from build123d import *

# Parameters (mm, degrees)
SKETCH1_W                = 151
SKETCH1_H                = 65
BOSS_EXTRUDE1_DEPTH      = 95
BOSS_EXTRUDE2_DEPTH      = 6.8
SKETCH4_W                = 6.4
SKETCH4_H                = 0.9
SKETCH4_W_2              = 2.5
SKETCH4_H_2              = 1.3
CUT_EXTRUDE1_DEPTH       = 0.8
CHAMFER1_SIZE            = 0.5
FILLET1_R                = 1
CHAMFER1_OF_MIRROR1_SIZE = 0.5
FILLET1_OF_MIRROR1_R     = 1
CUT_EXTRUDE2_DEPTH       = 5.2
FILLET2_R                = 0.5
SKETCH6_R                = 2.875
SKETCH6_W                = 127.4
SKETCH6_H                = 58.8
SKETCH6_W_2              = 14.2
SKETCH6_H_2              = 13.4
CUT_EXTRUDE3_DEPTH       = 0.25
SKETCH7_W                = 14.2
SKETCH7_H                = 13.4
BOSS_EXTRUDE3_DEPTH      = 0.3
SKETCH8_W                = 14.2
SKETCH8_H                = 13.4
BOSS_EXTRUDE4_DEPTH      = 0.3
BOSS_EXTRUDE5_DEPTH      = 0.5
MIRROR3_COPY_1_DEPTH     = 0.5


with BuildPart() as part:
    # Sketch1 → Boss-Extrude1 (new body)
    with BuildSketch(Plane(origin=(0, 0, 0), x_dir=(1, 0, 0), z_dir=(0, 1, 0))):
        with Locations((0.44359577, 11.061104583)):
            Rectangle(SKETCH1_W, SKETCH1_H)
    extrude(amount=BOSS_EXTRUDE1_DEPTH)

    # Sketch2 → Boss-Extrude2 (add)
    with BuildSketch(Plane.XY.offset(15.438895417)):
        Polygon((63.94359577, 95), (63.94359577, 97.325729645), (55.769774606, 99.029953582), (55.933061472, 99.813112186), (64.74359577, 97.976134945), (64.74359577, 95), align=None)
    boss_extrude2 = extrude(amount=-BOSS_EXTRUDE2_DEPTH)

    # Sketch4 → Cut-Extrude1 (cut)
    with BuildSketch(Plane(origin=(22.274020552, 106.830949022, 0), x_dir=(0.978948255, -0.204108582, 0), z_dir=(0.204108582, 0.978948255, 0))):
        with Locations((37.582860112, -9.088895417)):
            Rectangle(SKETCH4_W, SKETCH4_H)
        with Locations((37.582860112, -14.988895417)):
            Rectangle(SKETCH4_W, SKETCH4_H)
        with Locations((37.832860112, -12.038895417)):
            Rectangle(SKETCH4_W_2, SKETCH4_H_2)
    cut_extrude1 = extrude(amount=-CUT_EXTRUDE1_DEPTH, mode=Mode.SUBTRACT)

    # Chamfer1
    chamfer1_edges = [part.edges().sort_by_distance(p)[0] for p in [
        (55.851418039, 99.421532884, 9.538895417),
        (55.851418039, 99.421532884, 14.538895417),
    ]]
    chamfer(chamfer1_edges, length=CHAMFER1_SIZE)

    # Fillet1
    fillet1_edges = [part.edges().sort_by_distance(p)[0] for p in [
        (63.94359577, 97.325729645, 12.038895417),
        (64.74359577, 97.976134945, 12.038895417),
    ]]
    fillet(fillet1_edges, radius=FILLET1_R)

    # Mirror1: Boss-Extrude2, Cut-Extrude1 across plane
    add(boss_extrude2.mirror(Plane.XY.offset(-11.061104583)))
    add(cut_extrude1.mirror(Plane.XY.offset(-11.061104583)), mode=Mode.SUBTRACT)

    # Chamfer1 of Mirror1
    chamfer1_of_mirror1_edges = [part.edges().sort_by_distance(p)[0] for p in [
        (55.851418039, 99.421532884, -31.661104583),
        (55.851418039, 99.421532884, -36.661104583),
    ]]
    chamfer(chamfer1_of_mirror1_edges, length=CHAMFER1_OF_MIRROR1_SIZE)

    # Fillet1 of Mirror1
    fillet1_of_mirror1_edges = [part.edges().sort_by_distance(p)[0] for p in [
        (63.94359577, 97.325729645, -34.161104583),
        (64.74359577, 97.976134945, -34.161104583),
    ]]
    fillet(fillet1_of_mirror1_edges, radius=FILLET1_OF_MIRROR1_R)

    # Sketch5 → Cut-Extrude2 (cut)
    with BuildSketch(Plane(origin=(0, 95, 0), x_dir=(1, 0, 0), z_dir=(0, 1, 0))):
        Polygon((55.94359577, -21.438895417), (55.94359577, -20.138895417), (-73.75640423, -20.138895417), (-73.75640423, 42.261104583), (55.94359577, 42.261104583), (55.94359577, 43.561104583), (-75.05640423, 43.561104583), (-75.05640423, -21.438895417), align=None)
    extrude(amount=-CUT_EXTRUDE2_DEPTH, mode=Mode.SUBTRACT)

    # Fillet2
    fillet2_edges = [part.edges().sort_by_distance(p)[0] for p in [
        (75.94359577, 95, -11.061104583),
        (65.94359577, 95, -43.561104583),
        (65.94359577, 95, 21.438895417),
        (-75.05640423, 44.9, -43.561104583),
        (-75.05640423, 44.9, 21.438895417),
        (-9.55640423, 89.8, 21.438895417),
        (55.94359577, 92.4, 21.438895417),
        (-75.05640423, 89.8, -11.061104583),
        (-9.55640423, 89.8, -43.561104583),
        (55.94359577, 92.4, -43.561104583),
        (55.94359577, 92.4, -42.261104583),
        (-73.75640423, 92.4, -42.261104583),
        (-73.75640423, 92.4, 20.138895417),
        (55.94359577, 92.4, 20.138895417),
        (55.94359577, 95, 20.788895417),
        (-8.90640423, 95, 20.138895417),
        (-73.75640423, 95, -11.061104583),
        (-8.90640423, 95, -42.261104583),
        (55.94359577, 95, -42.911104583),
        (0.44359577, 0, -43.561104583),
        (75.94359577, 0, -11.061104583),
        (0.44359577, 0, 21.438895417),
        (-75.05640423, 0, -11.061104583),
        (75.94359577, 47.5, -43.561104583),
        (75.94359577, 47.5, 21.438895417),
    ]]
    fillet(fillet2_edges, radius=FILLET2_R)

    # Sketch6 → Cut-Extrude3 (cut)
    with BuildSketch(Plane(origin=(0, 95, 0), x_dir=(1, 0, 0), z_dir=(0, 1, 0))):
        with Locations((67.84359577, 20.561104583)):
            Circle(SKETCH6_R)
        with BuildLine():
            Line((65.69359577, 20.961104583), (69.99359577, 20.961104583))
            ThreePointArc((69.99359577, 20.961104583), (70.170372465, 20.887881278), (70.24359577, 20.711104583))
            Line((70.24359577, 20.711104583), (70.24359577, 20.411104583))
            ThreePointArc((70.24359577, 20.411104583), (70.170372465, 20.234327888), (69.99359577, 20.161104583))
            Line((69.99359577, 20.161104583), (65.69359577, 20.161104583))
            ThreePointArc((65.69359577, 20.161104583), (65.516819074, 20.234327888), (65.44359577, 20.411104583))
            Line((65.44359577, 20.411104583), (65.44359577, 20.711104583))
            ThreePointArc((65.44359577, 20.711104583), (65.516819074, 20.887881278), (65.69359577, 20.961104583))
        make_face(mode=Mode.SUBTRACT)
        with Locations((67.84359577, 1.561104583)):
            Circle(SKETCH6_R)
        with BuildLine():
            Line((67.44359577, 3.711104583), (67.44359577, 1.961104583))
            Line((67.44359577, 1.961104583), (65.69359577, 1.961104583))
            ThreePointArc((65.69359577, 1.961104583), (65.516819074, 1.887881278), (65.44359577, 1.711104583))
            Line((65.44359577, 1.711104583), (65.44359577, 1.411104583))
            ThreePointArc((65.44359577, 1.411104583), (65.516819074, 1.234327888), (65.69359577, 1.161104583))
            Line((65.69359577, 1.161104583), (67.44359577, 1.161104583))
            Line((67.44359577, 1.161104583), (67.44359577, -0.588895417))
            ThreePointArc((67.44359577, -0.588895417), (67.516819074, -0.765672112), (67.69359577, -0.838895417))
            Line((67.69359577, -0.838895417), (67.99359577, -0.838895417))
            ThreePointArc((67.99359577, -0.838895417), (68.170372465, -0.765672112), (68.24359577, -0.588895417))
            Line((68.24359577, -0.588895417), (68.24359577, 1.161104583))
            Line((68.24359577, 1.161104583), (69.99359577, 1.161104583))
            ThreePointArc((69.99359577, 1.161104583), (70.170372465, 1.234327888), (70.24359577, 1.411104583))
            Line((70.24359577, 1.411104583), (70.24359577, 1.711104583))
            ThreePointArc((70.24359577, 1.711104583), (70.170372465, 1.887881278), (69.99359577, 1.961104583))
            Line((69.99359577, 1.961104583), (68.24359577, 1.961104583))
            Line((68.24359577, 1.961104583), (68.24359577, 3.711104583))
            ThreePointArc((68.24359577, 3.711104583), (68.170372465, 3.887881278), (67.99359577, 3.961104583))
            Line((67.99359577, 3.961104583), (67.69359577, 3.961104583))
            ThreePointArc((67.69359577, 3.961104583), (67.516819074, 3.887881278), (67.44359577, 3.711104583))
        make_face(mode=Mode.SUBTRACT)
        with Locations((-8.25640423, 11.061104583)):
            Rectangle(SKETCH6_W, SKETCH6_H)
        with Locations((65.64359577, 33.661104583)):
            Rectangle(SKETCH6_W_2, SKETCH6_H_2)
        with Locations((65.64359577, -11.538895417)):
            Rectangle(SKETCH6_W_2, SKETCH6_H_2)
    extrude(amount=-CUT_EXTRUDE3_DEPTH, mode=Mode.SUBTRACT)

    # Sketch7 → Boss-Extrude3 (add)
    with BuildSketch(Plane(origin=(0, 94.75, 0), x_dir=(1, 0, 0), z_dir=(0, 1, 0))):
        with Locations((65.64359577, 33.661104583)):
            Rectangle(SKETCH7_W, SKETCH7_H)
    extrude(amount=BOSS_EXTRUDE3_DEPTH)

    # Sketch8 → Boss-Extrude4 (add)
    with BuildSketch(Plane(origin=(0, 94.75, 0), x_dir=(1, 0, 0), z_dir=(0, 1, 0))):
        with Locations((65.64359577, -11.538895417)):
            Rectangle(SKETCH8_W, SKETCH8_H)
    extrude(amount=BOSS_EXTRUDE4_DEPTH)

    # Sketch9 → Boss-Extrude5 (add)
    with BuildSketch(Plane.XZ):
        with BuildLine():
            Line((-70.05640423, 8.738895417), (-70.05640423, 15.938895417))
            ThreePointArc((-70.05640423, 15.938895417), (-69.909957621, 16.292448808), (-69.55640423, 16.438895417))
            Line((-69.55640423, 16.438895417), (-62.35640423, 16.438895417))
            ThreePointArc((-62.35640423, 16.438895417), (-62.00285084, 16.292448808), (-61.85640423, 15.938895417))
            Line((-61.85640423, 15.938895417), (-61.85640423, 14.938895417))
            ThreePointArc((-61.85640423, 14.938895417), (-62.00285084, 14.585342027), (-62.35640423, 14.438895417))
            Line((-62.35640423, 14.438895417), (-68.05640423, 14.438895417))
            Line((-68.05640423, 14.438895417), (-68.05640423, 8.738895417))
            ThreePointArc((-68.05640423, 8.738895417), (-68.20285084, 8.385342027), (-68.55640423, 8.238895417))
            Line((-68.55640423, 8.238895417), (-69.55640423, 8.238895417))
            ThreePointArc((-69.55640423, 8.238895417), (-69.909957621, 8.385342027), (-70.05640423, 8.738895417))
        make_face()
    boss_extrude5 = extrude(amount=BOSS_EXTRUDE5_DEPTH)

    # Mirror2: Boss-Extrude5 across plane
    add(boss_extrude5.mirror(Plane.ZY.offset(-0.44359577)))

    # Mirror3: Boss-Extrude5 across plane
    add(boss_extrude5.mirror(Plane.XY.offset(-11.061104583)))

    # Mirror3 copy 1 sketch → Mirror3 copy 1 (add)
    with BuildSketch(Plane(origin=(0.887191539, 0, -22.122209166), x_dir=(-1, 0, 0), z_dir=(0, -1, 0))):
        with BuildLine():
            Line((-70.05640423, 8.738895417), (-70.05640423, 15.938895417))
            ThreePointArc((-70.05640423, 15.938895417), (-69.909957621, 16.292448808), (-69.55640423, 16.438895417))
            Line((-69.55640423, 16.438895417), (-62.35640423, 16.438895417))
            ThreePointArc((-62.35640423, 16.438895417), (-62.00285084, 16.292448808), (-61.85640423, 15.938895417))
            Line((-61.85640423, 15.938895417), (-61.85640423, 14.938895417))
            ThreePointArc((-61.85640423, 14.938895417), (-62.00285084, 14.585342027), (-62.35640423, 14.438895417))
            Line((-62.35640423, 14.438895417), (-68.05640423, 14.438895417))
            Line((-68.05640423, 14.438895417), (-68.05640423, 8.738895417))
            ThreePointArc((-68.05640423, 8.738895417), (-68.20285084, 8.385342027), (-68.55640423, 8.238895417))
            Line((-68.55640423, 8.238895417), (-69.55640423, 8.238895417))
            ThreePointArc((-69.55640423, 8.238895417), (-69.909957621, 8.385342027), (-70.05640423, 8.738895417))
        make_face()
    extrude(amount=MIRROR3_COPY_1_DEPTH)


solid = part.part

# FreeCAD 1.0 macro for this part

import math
import FreeCAD as App
import Part
import Sketcher

V = App.Vector
Q = App.Units.Quantity


def edges_at(feature, points):
    """Names of the edges that pass closest to the given points."""
    edges = feature.Shape.Edges
    near = lambda p: min(range(len(edges)), key=lambda i: edges[i].distToShape(Part.Vertex(*p))[0])
    return sorted({f"Edge{near(p) + 1}" for p in points})


def add_polygon(sketch, points):
    """Adds a closed chain of lines whose ends are joined by coincident constraints."""
    first, n = sketch.GeometryCount, len(points)
    for a, b in zip(points, points[1:] + points[:1]):
        sketch.addGeometry(Part.LineSegment(App.Vector(*a, 0), App.Vector(*b, 0)), False)
    for i in range(n):
        sketch.addConstraint(Sketcher.Constraint("Coincident", first + i, 2, first + (i + 1) % n, 1))

doc = App.newDocument("Part")
body = doc.addObject("PartDesign::Body", "Body")
body.AllowCompound = True

# Sketch on XZ plane
sketch1 = doc.addObject("Sketcher::SketchObject", "Sketch")
body.addObject(sketch1)
sketch1.AttachmentSupport = (doc.XZ_Plane, [""])
sketch1.MapMode = "FlatFace"
add_polygon(sketch1, [(-75, -44), (-75, 21), (76, 21), (76, -44)])  # lines 0-3
sketch1.addConstraint([
    Sketcher.Constraint("Vertical", 0),
    Sketcher.Constraint("Horizontal", 1),
    Sketcher.Constraint("Vertical", 2),
    Sketcher.Constraint("Horizontal", 3),
    Sketcher.Constraint("DistanceX", 1, 1, 1, 2, Q("151 mm")),
    Sketcher.Constraint("DistanceY", 0, 1, 0, 2, Q("65 mm")),
    Sketcher.Constraint("DistanceX", 0, 2, -1, 1, Q("75.056404 mm")),
    Sketcher.Constraint("DistanceY", -1, 1, 0, 2, Q("21.438895 mm")),
])
pad1 = doc.addObject("PartDesign::Pad", "Pad")
body.addObject(pad1)
pad1.Profile = sketch1
pad1.Length = 95
pad1.Reversed = True

# Sketch on XY plane
sketch2 = doc.addObject("Sketcher::SketchObject", "Sketch001")
body.addObject(sketch2)
sketch2.AttachmentSupport = (doc.XY_Plane, [""])
sketch2.MapMode = "FlatFace"
sketch2.AttachmentOffset = App.Placement(V(0, 0, 15.438895), App.Rotation())
add_polygon(sketch2, [(63.9, 97.3), (63.9, 95), (64.7, 95), (64.7, 98), (55.9, 99.8), (55.8, 99)])  # lines 0-5
sketch2.addConstraint([
    Sketcher.Constraint("Vertical", 0),
    Sketcher.Constraint("Horizontal", 1),
    Sketcher.Constraint("Vertical", 2),
    Sketcher.Constraint("Perpendicular", 3, 4),
    Sketcher.Constraint("Perpendicular", 4, 5),
    Sketcher.Constraint("Distance", 3, Q("9 mm")),
    Sketcher.Constraint("DistanceX", 1, 1, 1, 2, Q("0.8 mm")),
    Sketcher.Constraint("DistanceY", -1, 1, 0, 2, Q("95 mm")),
    Sketcher.Constraint("Distance", 4, Q("0.8 mm")),
    Sketcher.Constraint("DistanceY", 0, 2, 0, 1, Q("2.32573 mm")),
    Sketcher.Constraint("DistanceY", 2, 1, 2, 2, Q("2.976135 mm")),
    Sketcher.Constraint("DistanceX", -1, 1, 3, 2, Q("55.933061 mm")),
])
pad2 = doc.addObject("PartDesign::Pad", "Pad001")
body.addObject(pad2)
pad2.Profile = sketch2
pad2.Length = 6.8
pad2.Reversed = True

# Sketch on an angled plane
sketch3 = doc.addObject("Sketcher::SketchObject", "Sketch002")
body.addObject(sketch3)
sketch3.Placement = App.Placement(V(22.274021, 106.830949, 0), App.Rotation(V(0.978948255, -0.204108582, 0), V(0, 0, -0.999999999), V(0.204108582, 0.978948255, 0), "ZXY"))
add_polygon(sketch3, [(34.4, -8.6), (34.4, -9.5), (40.8, -9.5), (40.8, -8.6)])  # lines 0-3
add_polygon(sketch3, [(34.4, -14.5), (34.4, -15.4), (40.8, -15.4), (40.8, -14.5)])  # lines 4-7
add_polygon(sketch3, [(36.6, -11.4), (36.6, -12.7), (39.1, -12.7), (39.1, -11.4)])  # lines 8-11
sketch3.addConstraint([
    Sketcher.Constraint("Vertical", 0),
    Sketcher.Constraint("Horizontal", 1),
    Sketcher.Constraint("Vertical", 2),
    Sketcher.Constraint("Horizontal", 3),
    Sketcher.Constraint("Vertical", 4),
    Sketcher.Constraint("Horizontal", 5),
    Sketcher.Constraint("Vertical", 6),
    Sketcher.Constraint("Horizontal", 7),
    Sketcher.Constraint("Vertical", 8),
    Sketcher.Constraint("Horizontal", 9),
    Sketcher.Constraint("Vertical", 10),
    Sketcher.Constraint("Horizontal", 11),
    Sketcher.Constraint("Vertical", 3, 2, 4, 2),
    Sketcher.Constraint("Vertical", 2, 2, 5, 2),
    Sketcher.Constraint("Equal", 2, 4),
    Sketcher.Constraint("DistanceX", 1, 1, 1, 2, Q("6.4 mm")),
    Sketcher.Constraint("DistanceX", 9, 1, 9, 2, Q("2.5 mm")),
    Sketcher.Constraint("DistanceY", 0, 2, 0, 1, Q("0.9 mm")),
    Sketcher.Constraint("DistanceY", 8, 2, 8, 1, Q("1.3 mm")),
    Sketcher.Constraint("DistanceY", 6, 2, 1, 2, Q("5 mm")),
    Sketcher.Constraint("DistanceX", 7, 2, 8, 2, Q("2.2 mm")),
    Sketcher.Constraint("DistanceY", 7, 2, 8, 2, Q("1.85 mm")),
    Sketcher.Constraint("DistanceX", -1, 1, 0, 2, Q("34.38286 mm")),
    Sketcher.Constraint("DistanceY", 0, 2, -1, 1, Q("9.538895 mm")),
])
pocket1 = doc.addObject("PartDesign::Pocket", "Pocket")
body.addObject(pocket1)
pocket1.Profile = sketch3
pocket1.Length = 0.8
doc.recompute()

chamfer = doc.addObject("PartDesign::Chamfer", "Chamfer")
body.addObject(chamfer)
chamfer.Base = (pocket1, edges_at(pocket1, [(55.851, 99.422, 9.539), (55.851, 99.422, 14.539)]))
chamfer.Size = 0.5
doc.recompute()

fillet = doc.addObject("PartDesign::Fillet", "Fillet")
body.addObject(fillet)
fillet.Base = (chamfer, edges_at(chamfer, [(63.944, 97.326, 12.039), (64.744, 97.976, 12.039)]))
fillet.Radius = 1
doc.recompute()

datumplane = doc.addObject("PartDesign::Plane", "DatumPlane")
body.addObject(datumplane)
datumplane.AttachmentSupport = (doc.XY_Plane, [""])
datumplane.MapMode = "FlatFace"
datumplane.AttachmentOffset = App.Placement(V(0, 0, -11.061105), App.Rotation())
mirrored = doc.addObject("PartDesign::Mirrored", "Mirrored")
body.addObject(mirrored)
mirrored.Originals = [pad2, pocket1]
mirrored.MirrorPlane = (datumplane, [""])
body.Tip = mirrored
doc.recompute()

chamfer2 = doc.addObject("PartDesign::Chamfer", "Chamfer001")
body.addObject(chamfer2)
chamfer2.Base = (mirrored, edges_at(mirrored, [(55.851, 99.422, -31.661), (55.851, 99.422, -36.661)]))
chamfer2.Size = 0.5
doc.recompute()

fillet2 = doc.addObject("PartDesign::Fillet", "Fillet001")
body.addObject(fillet2)
fillet2.Base = (chamfer2, edges_at(chamfer2, [(63.944, 97.326, -34.161), (64.744, 97.976, -34.161)]))
fillet2.Radius = 1

# Sketch on XZ plane
sketch4 = doc.addObject("Sketcher::SketchObject", "Sketch003")
body.addObject(sketch4)
sketch4.AttachmentSupport = (doc.XZ_Plane, [""])
sketch4.MapMode = "FlatFace"
sketch4.AttachmentOffset = App.Placement(V(0, 0, -95), App.Rotation())
add_polygon(sketch4, [(55.9, 21.4), (55.9, 20.1), (-73.8, 20.1), (-73.8, -42.3), (55.9, -42.3), (55.9, -43.6), (-75.1, -43.6), (-75.1, 21.4)])  # lines 0-7
sketch4.addConstraint([
    Sketcher.Constraint("Vertical", 0),
    Sketcher.Constraint("Horizontal", 1),
    Sketcher.Constraint("Vertical", 2),
    Sketcher.Constraint("Horizontal", 3),
    Sketcher.Constraint("Vertical", 4),
    Sketcher.Constraint("Horizontal", 5),
    Sketcher.Constraint("Vertical", 6),
    Sketcher.Constraint("Horizontal", 7),
    Sketcher.Constraint("Vertical", 0, 2, 3, 2),
    Sketcher.Constraint("Equal", 0, 4),
    Sketcher.Constraint("DistanceX", 5, 2, 5, 1, Q("131 mm")),
    Sketcher.Constraint("DistanceY", 6, 1, 6, 2, Q("65 mm")),
    Sketcher.Constraint("DistanceX", 1, 2, 1, 1, Q("129.7 mm")),
    Sketcher.Constraint("DistanceY", 0, 2, 0, 1, Q("1.3 mm")),
    Sketcher.Constraint("DistanceX", -1, 1, 0, 2, Q("55.943596 mm")),
    Sketcher.Constraint("DistanceY", -1, 1, 0, 2, Q("20.138895 mm")),
])
pocket2 = doc.addObject("PartDesign::Pocket", "Pocket001")
body.addObject(pocket2)
pocket2.Profile = sketch4
pocket2.Length = 5.2
pocket2.Reversed = True
doc.recompute()

fillet3 = doc.addObject("PartDesign::Fillet", "Fillet002")
body.addObject(fillet3)
fillet3.Base = (pocket2, edges_at(pocket2, [
    (75.944, 95, -11.061),
    (65.944, 95, -43.561),
    (65.944, 95, 21.439),
    (-75.056, 44.9, -43.561),
    (-75.056, 44.9, 21.439),
    (-9.556, 89.8, 21.439),
    (55.944, 92.4, 21.439),
    (-75.056, 89.8, -11.061),
    (-9.556, 89.8, -43.561),
    (55.944, 92.4, -43.561),
    (55.944, 92.4, -42.261),
    (-73.756, 92.4, -42.261),
    (-73.756, 92.4, 20.139),
    (55.944, 92.4, 20.139),
    (55.944, 95, 20.789),
    (-8.906, 95, 20.139),
    (-73.756, 95, -11.061),
    (-8.906, 95, -42.261),
    (55.944, 95, -42.911),
    (0.444, 0, -43.561),
    (75.944, 0, -11.061),
    (0.444, 0, 21.439),
    (-75.056, 0, -11.061),
    (75.944, 47.5, -43.561),
    (75.944, 47.5, 21.439),
]))
fillet3.Radius = 0.5

# Sketch on XZ plane
sketch5 = doc.addObject("Sketcher::SketchObject", "Sketch004")
body.addObject(sketch5)
sketch5.AttachmentSupport = (doc.XZ_Plane, [""])
sketch5.MapMode = "FlatFace"
sketch5.AttachmentOffset = App.Placement(V(0, 0, -95), App.Rotation())
sketch5.addGeometry(Part.Circle(V(67.84, -20.56, 0), V(0, 0, 1), 2.88), False)  # 0
sketch5.addGeometry(Part.ArcOfCircle(Part.Circle(V(65.69, -20.71, 0), V(0, 0, 1), 0.25), math.radians(180), math.radians(270)), False)  # 1
sketch5.addGeometry(Part.LineSegment(V(65.69, -20.96, 0), V(69.99, -20.96, 0)), False)  # 2
sketch5.addGeometry(Part.ArcOfCircle(Part.Circle(V(69.99, -20.71, 0), V(0, 0, 1), 0.25), math.radians(-90), math.radians(0)), False)  # 3
sketch5.addGeometry(Part.LineSegment(V(70.24, -20.71, 0), V(70.24, -20.41, 0)), False)  # 4
sketch5.addGeometry(Part.ArcOfCircle(Part.Circle(V(69.99, -20.41, 0), V(0, 0, 1), 0.25), math.radians(0), math.radians(90)), False)  # 5
sketch5.addGeometry(Part.LineSegment(V(69.99, -20.16, 0), V(65.69, -20.16, 0)), False)  # 6
sketch5.addGeometry(Part.ArcOfCircle(Part.Circle(V(65.69, -20.41, 0), V(0, 0, 1), 0.25), math.radians(90), math.radians(180)), False)  # 7
sketch5.addGeometry(Part.LineSegment(V(65.44, -20.41, 0), V(65.44, -20.71, 0)), False)  # 8
sketch5.addGeometry(Part.Circle(V(67.84, -1.56, 0), V(0, 0, 1), 2.88), False)  # 9
sketch5.addGeometry(Part.LineSegment(V(67.44, -1.96, 0), V(67.44, -3.71, 0)), False)  # 10
sketch5.addGeometry(Part.ArcOfCircle(Part.Circle(V(67.69, -3.71, 0), V(0, 0, 1), 0.25), math.radians(180), math.radians(270)), False)  # 11
sketch5.addGeometry(Part.LineSegment(V(67.69, -3.96, 0), V(67.99, -3.96, 0)), False)  # 12
sketch5.addGeometry(Part.ArcOfCircle(Part.Circle(V(67.99, -3.71, 0), V(0, 0, 1), 0.25), math.radians(-90), math.radians(0)), False)  # 13
sketch5.addGeometry(Part.LineSegment(V(68.24, -3.71, 0), V(68.24, -1.96, 0)), False)  # 14
sketch5.addGeometry(Part.LineSegment(V(68.24, -1.96, 0), V(69.99, -1.96, 0)), False)  # 15
sketch5.addGeometry(Part.ArcOfCircle(Part.Circle(V(69.99, -1.71, 0), V(0, 0, 1), 0.25), math.radians(-90), math.radians(0)), False)  # 16
sketch5.addGeometry(Part.LineSegment(V(70.24, -1.71, 0), V(70.24, -1.41, 0)), False)  # 17
sketch5.addGeometry(Part.ArcOfCircle(Part.Circle(V(69.99, -1.41, 0), V(0, 0, 1), 0.25), math.radians(0), math.radians(90)), False)  # 18
sketch5.addGeometry(Part.LineSegment(V(69.99, -1.16, 0), V(68.24, -1.16, 0)), False)  # 19
sketch5.addGeometry(Part.LineSegment(V(68.24, -1.16, 0), V(68.24, 0.59, 0)), False)  # 20
sketch5.addGeometry(Part.ArcOfCircle(Part.Circle(V(67.99, 0.59, 0), V(0, 0, 1), 0.25), math.radians(0), math.radians(90)), False)  # 21
sketch5.addGeometry(Part.LineSegment(V(67.99, 0.84, 0), V(67.69, 0.84, 0)), False)  # 22
sketch5.addGeometry(Part.ArcOfCircle(Part.Circle(V(67.69, 0.59, 0), V(0, 0, 1), 0.25), math.radians(90), math.radians(180)), False)  # 23
sketch5.addGeometry(Part.LineSegment(V(67.44, 0.59, 0), V(67.44, -1.16, 0)), False)  # 24
sketch5.addGeometry(Part.LineSegment(V(67.44, -1.16, 0), V(65.69, -1.16, 0)), False)  # 25
sketch5.addGeometry(Part.ArcOfCircle(Part.Circle(V(65.69, -1.41, 0), V(0, 0, 1), 0.25), math.radians(90), math.radians(180)), False)  # 26
sketch5.addGeometry(Part.LineSegment(V(65.44, -1.41, 0), V(65.44, -1.71, 0)), False)  # 27
sketch5.addGeometry(Part.ArcOfCircle(Part.Circle(V(65.69, -1.71, 0), V(0, 0, 1), 0.25), math.radians(180), math.radians(270)), False)  # 28
sketch5.addGeometry(Part.LineSegment(V(65.69, -1.96, 0), V(67.44, -1.96, 0)), False)  # 29
add_polygon(sketch5, [(-71.96, -40.46), (-71.96, 18.34), (55.44, 18.34), (55.44, -40.46)])  # lines 30-33
add_polygon(sketch5, [(58.54, -40.36), (58.54, -26.96), (72.74, -26.96), (72.74, -40.36)])  # lines 34-37
add_polygon(sketch5, [(58.54, 4.84), (58.54, 18.24), (72.74, 18.24), (72.74, 4.84)])  # lines 38-41
sketch5.addConstraint([
    Sketcher.Constraint("Tangent", 1, 2, 2, 1),
    Sketcher.Constraint("Tangent", 2, 2, 3, 1),
    Sketcher.Constraint("Tangent", 3, 2, 4, 1),
    Sketcher.Constraint("Tangent", 4, 2, 5, 1),
    Sketcher.Constraint("Tangent", 5, 2, 6, 1),
    Sketcher.Constraint("Tangent", 6, 2, 7, 1),
    Sketcher.Constraint("Tangent", 7, 2, 8, 1),
    Sketcher.Constraint("Tangent", 8, 2, 1, 1),
    Sketcher.Constraint("Tangent", 10, 2, 11, 1),
    Sketcher.Constraint("Tangent", 11, 2, 12, 1),
    Sketcher.Constraint("Tangent", 12, 2, 13, 1),
    Sketcher.Constraint("Tangent", 13, 2, 14, 1),
    Sketcher.Constraint("Coincident", 14, 2, 15, 1),
    Sketcher.Constraint("Tangent", 15, 2, 16, 1),
    Sketcher.Constraint("Tangent", 16, 2, 17, 1),
    Sketcher.Constraint("Tangent", 17, 2, 18, 1),
    Sketcher.Constraint("Tangent", 18, 2, 19, 1),
    Sketcher.Constraint("Coincident", 19, 2, 20, 1),
    Sketcher.Constraint("Tangent", 20, 2, 21, 1),
    Sketcher.Constraint("Tangent", 21, 2, 22, 1),
    Sketcher.Constraint("Tangent", 22, 2, 23, 1),
    Sketcher.Constraint("Tangent", 23, 2, 24, 1),
    Sketcher.Constraint("Coincident", 24, 2, 25, 1),
    Sketcher.Constraint("Tangent", 25, 2, 26, 1),
    Sketcher.Constraint("Tangent", 26, 2, 27, 1),
    Sketcher.Constraint("Tangent", 27, 2, 28, 1),
    Sketcher.Constraint("Tangent", 28, 2, 29, 1),
    Sketcher.Constraint("Coincident", 29, 2, 10, 1),
    Sketcher.Constraint("Horizontal", 2),
    Sketcher.Constraint("Vertical", 4),
    Sketcher.Constraint("Horizontal", 6),
    Sketcher.Constraint("Vertical", 8),
    Sketcher.Constraint("Vertical", 10),
    Sketcher.Constraint("Horizontal", 12),
    Sketcher.Constraint("Vertical", 14),
    Sketcher.Constraint("Horizontal", 15),
    Sketcher.Constraint("Vertical", 17),
    Sketcher.Constraint("Horizontal", 19),
    Sketcher.Constraint("Vertical", 20),
    Sketcher.Constraint("Horizontal", 22),
    Sketcher.Constraint("Vertical", 24),
    Sketcher.Constraint("Horizontal", 25),
    Sketcher.Constraint("Vertical", 27),
    Sketcher.Constraint("Horizontal", 29),
    Sketcher.Constraint("Vertical", 30),
    Sketcher.Constraint("Horizontal", 31),
    Sketcher.Constraint("Vertical", 32),
    Sketcher.Constraint("Horizontal", 33),
    Sketcher.Constraint("Vertical", 34),
    Sketcher.Constraint("Horizontal", 35),
    Sketcher.Constraint("Vertical", 36),
    Sketcher.Constraint("Horizontal", 37),
    Sketcher.Constraint("Vertical", 38),
    Sketcher.Constraint("Horizontal", 39),
    Sketcher.Constraint("Vertical", 40),
    Sketcher.Constraint("Horizontal", 41),
    Sketcher.Constraint("Equal", 1, 3),
    Sketcher.Constraint("Equal", 3, 5),
    Sketcher.Constraint("Equal", 5, 7),
    Sketcher.Constraint("Equal", 0, 9),
    Sketcher.Constraint("Equal", 7, 11),
    Sketcher.Constraint("Equal", 11, 13),
    Sketcher.Constraint("Equal", 13, 16),
    Sketcher.Constraint("Equal", 16, 18),
    Sketcher.Constraint("Equal", 18, 21),
    Sketcher.Constraint("Equal", 21, 23),
    Sketcher.Constraint("Equal", 23, 26),
    Sketcher.Constraint("Equal", 26, 28),
    Sketcher.Constraint("Horizontal", 18, 3, 26, 3),
    Sketcher.Constraint("Horizontal", 16, 3, 28, 3),
    Sketcher.Constraint("Vertical", 0, 3, 9, 3),
    Sketcher.Constraint("Vertical", 5, 3, 16, 3),
    Sketcher.Constraint("Vertical", 13, 3, 21, 3),
    Sketcher.Constraint("Vertical", 11, 3, 23, 3),
    Sketcher.Constraint("Vertical", 7, 3, 26, 3),
    Sketcher.Constraint("Vertical", 37, 2, 38, 2),
    Sketcher.Constraint("Vertical", 36, 2, 39, 2),
    Sketcher.Constraint("Equal", 19, 25),
    Sketcher.Constraint("Equal", 22, 4),
    Sketcher.Constraint("Equal", 29, 10),
    Sketcher.Constraint("Equal", 8, 17),
    Sketcher.Constraint("Equal", 14, 20),
    Sketcher.Constraint("Equal", 36, 38),
    Sketcher.Constraint("Diameter", 0, Q("5.75 mm")),
    Sketcher.Constraint("Radius", 1, Q("0.25 mm")),
    Sketcher.Constraint("DistanceX", 2, 1, 2, 2, Q("4.3 mm")),
    Sketcher.Constraint("DistanceX", 12, 1, 12, 2, Q("0.3 mm")),
    Sketcher.Constraint("DistanceX", 31, 1, 31, 2, Q("127.4 mm")),
    Sketcher.Constraint("DistanceX", 35, 1, 35, 2, Q("14.2 mm")),
    Sketcher.Constraint("DistanceY", 30, 1, 30, 2, Q("58.8 mm")),
    Sketcher.Constraint("DistanceY", 34, 1, 34, 2, Q("13.4 mm")),
    Sketcher.Constraint("DistanceY", 0, 3, 9, 3, Q("19 mm")),
    Sketcher.Constraint("DistanceY", 1, 3, 11, 3, Q("17 mm")),
    Sketcher.Constraint("DistanceX", 31, 2, 23, 2, Q("12 mm")),
    Sketcher.Constraint("DistanceY", 34, 2, 1, 2, Q("6 mm")),
    Sketcher.Constraint("DistanceY", 21, 2, 40, 2, Q("4 mm")),
    Sketcher.Constraint("DistanceY", 1, 2, 0, 3, Q("0.4 mm")),
    Sketcher.Constraint("DistanceX", 0, 3, 3, 2, Q("2.4 mm")),
    Sketcher.Constraint("DistanceY", 25, 2, 30, 2, Q("19.5 mm")),
    Sketcher.Constraint("DistanceX", 34, 2, 8, 2, Q("6.9 mm")),
    Sketcher.Constraint("DistanceX", -1, 1, 0, 3, Q("67.843596 mm")),
    Sketcher.Constraint("DistanceY", 0, 3, -1, 1, Q("20.561105 mm")),
])
pocket3 = doc.addObject("PartDesign::Pocket", "Pocket002")
body.addObject(pocket3)
pocket3.Profile = sketch5
pocket3.Length = 0.25
pocket3.Reversed = True

# Sketch on XZ plane
sketch6 = doc.addObject("Sketcher::SketchObject", "Sketch005")
body.addObject(sketch6)
sketch6.AttachmentSupport = (doc.XZ_Plane, [""])
sketch6.MapMode = "FlatFace"
sketch6.AttachmentOffset = App.Placement(V(0, 0, -94.75), App.Rotation())
add_polygon(sketch6, [(59, -40), (59, -27), (73, -27), (73, -40)])  # lines 0-3
sketch6.addConstraint([
    Sketcher.Constraint("Vertical", 0),
    Sketcher.Constraint("Horizontal", 1),
    Sketcher.Constraint("Vertical", 2),
    Sketcher.Constraint("Horizontal", 3),
    Sketcher.Constraint("DistanceX", 1, 1, 1, 2, Q("14.2 mm")),
    Sketcher.Constraint("DistanceY", 0, 1, 0, 2, Q("13.4 mm")),
    Sketcher.Constraint("DistanceX", -1, 1, 0, 2, Q("58.543596 mm")),
    Sketcher.Constraint("DistanceY", 0, 2, -1, 1, Q("26.961105 mm")),
])
pad3 = doc.addObject("PartDesign::Pad", "Pad002")
body.addObject(pad3)
pad3.Profile = sketch6
pad3.Length = 0.3
pad3.Reversed = True

# Sketch on XZ plane
sketch7 = doc.addObject("Sketcher::SketchObject", "Sketch006")
body.addObject(sketch7)
sketch7.AttachmentSupport = (doc.XZ_Plane, [""])
sketch7.MapMode = "FlatFace"
sketch7.AttachmentOffset = App.Placement(V(0, 0, -94.75), App.Rotation())
add_polygon(sketch7, [(59, 5), (59, 18), (73, 18), (73, 5)])  # lines 0-3
sketch7.addConstraint([
    Sketcher.Constraint("Vertical", 0),
    Sketcher.Constraint("Horizontal", 1),
    Sketcher.Constraint("Vertical", 2),
    Sketcher.Constraint("Horizontal", 3),
    Sketcher.Constraint("DistanceX", 1, 1, 1, 2, Q("14.2 mm")),
    Sketcher.Constraint("DistanceY", 0, 1, 0, 2, Q("13.4 mm")),
    Sketcher.Constraint("DistanceX", -1, 1, 0, 2, Q("58.543596 mm")),
    Sketcher.Constraint("DistanceY", -1, 1, 0, 2, Q("18.238895 mm")),
])
pad4 = doc.addObject("PartDesign::Pad", "Pad003")
body.addObject(pad4)
pad4.Profile = sketch7
pad4.Length = 0.3
pad4.Reversed = True

# Sketch on XZ plane
sketch8 = doc.addObject("Sketcher::SketchObject", "Sketch007")
body.addObject(sketch8)
sketch8.AttachmentSupport = (doc.XZ_Plane, [""])
sketch8.MapMode = "FlatFace"
sketch8.addGeometry([
    Part.LineSegment(V(-70.06, 15.94, 0), V(-70.06, 8.74, 0)),  # 0
    Part.ArcOfCircle(Part.Circle(V(-69.56, 8.74, 0), V(0, 0, 1), 0.5), math.radians(180), math.radians(270)),  # 1
    Part.LineSegment(V(-69.56, 8.24, 0), V(-68.56, 8.24, 0)),  # 2
    Part.ArcOfCircle(Part.Circle(V(-68.56, 8.74, 0), V(0, 0, 1), 0.5), math.radians(-90), math.radians(0)),  # 3
    Part.LineSegment(V(-68.06, 8.74, 0), V(-68.06, 14.44, 0)),  # 4
    Part.LineSegment(V(-68.06, 14.44, 0), V(-62.36, 14.44, 0)),  # 5
    Part.ArcOfCircle(Part.Circle(V(-62.36, 14.94, 0), V(0, 0, 1), 0.5), math.radians(-90), math.radians(0)),  # 6
    Part.LineSegment(V(-61.86, 14.94, 0), V(-61.86, 15.94, 0)),  # 7
    Part.ArcOfCircle(Part.Circle(V(-62.36, 15.94, 0), V(0, 0, 1), 0.5), math.radians(0), math.radians(90)),  # 8
    Part.LineSegment(V(-62.36, 16.44, 0), V(-69.56, 16.44, 0)),  # 9
    Part.ArcOfCircle(Part.Circle(V(-69.56, 15.94, 0), V(0, 0, 1), 0.5), math.radians(90), math.radians(180)),  # 10
], False)
sketch8.addConstraint([
    Sketcher.Constraint("Tangent", 0, 2, 1, 1),
    Sketcher.Constraint("Tangent", 1, 2, 2, 1),
    Sketcher.Constraint("Tangent", 2, 2, 3, 1),
    Sketcher.Constraint("Tangent", 3, 2, 4, 1),
    Sketcher.Constraint("Coincident", 4, 2, 5, 1),
    Sketcher.Constraint("Tangent", 5, 2, 6, 1),
    Sketcher.Constraint("Tangent", 6, 2, 7, 1),
    Sketcher.Constraint("Tangent", 7, 2, 8, 1),
    Sketcher.Constraint("Tangent", 8, 2, 9, 1),
    Sketcher.Constraint("Tangent", 9, 2, 10, 1),
    Sketcher.Constraint("Tangent", 10, 2, 0, 1),
    Sketcher.Constraint("Vertical", 0),
    Sketcher.Constraint("Horizontal", 2),
    Sketcher.Constraint("Vertical", 4),
    Sketcher.Constraint("Horizontal", 5),
    Sketcher.Constraint("Vertical", 7),
    Sketcher.Constraint("Horizontal", 9),
    Sketcher.Constraint("Equal", 1, 3),
    Sketcher.Constraint("Equal", 3, 6),
    Sketcher.Constraint("Equal", 6, 8),
    Sketcher.Constraint("Equal", 8, 10),
    Sketcher.Constraint("Equal", 9, 0),
    Sketcher.Constraint("Equal", 5, 4),
    Sketcher.Constraint("Radius", 1, Q("0.5 mm")),
    Sketcher.Constraint("DistanceX", 2, 1, 2, 2, Q("1 mm")),
    Sketcher.Constraint("DistanceX", 5, 1, 5, 2, Q("5.7 mm")),
    Sketcher.Constraint("DistanceX", 1, 3, -1, 1, Q("69.556404 mm")),
    Sketcher.Constraint("DistanceY", -1, 1, 1, 3, Q("8.738895 mm")),
])
pad5 = doc.addObject("PartDesign::Pad", "Pad004")
body.addObject(pad5)
pad5.Profile = sketch8
pad5.Length = 0.5
doc.recompute()

datumplane2 = doc.addObject("PartDesign::Plane", "DatumPlane001")
body.addObject(datumplane2)
datumplane2.AttachmentSupport = (doc.YZ_Plane, [""])
datumplane2.MapMode = "FlatFace"
datumplane2.AttachmentOffset = App.Placement(V(0, 0, 0.443596), App.Rotation())
mirrored2 = doc.addObject("PartDesign::Mirrored", "Mirrored001")
body.addObject(mirrored2)
mirrored2.Originals = [pad5]
mirrored2.MirrorPlane = (datumplane2, [""])
body.Tip = mirrored2
doc.recompute()

datumplane3 = doc.addObject("PartDesign::Plane", "DatumPlane002")
body.addObject(datumplane3)
datumplane3.AttachmentSupport = (doc.XY_Plane, [""])
datumplane3.MapMode = "FlatFace"
datumplane3.AttachmentOffset = App.Placement(V(0, 0, -11.061105), App.Rotation())
mirrored3 = doc.addObject("PartDesign::Mirrored", "Mirrored002")
body.addObject(mirrored3)
mirrored3.Originals = [pad5]
mirrored3.MirrorPlane = (datumplane3, [""])
body.Tip = mirrored3

# Sketch on XZ plane
sketch9 = doc.addObject("Sketcher::SketchObject", "Sketch008")
body.addObject(sketch9)
sketch9.AttachmentSupport = (doc.XZ_Plane, [""])
sketch9.MapMode = "FlatFace"
sketch9.addGeometry([
    Part.LineSegment(V(70.94, -38.06, 0), V(70.94, -30.86, 0)),  # 0
    Part.ArcOfCircle(Part.Circle(V(70.44, -30.86, 0), V(0, 0, 1), 0.5), math.radians(0), math.radians(90)),  # 1
    Part.LineSegment(V(70.44, -30.36, 0), V(69.44, -30.36, 0)),  # 2
    Part.ArcOfCircle(Part.Circle(V(69.44, -30.86, 0), V(0, 0, 1), 0.5), math.radians(90), math.radians(180)),  # 3
    Part.LineSegment(V(68.94, -30.86, 0), V(68.94, -36.56, 0)),  # 4
    Part.LineSegment(V(68.94, -36.56, 0), V(63.24, -36.56, 0)),  # 5
    Part.ArcOfCircle(Part.Circle(V(63.24, -37.06, 0), V(0, 0, 1), 0.5), math.radians(90), math.radians(180)),  # 6
    Part.LineSegment(V(62.74, -37.06, 0), V(62.74, -38.06, 0)),  # 7
    Part.ArcOfCircle(Part.Circle(V(63.24, -38.06, 0), V(0, 0, 1), 0.5), math.radians(180), math.radians(270)),  # 8
    Part.LineSegment(V(63.24, -38.56, 0), V(70.44, -38.56, 0)),  # 9
    Part.ArcOfCircle(Part.Circle(V(70.44, -38.06, 0), V(0, 0, 1), 0.5), math.radians(-90), math.radians(0)),  # 10
], False)
sketch9.addConstraint([
    Sketcher.Constraint("Tangent", 0, 2, 1, 1),
    Sketcher.Constraint("Tangent", 1, 2, 2, 1),
    Sketcher.Constraint("Tangent", 2, 2, 3, 1),
    Sketcher.Constraint("Tangent", 3, 2, 4, 1),
    Sketcher.Constraint("Coincident", 4, 2, 5, 1),
    Sketcher.Constraint("Tangent", 5, 2, 6, 1),
    Sketcher.Constraint("Tangent", 6, 2, 7, 1),
    Sketcher.Constraint("Tangent", 7, 2, 8, 1),
    Sketcher.Constraint("Tangent", 8, 2, 9, 1),
    Sketcher.Constraint("Tangent", 9, 2, 10, 1),
    Sketcher.Constraint("Tangent", 10, 2, 0, 1),
    Sketcher.Constraint("Vertical", 0),
    Sketcher.Constraint("Horizontal", 2),
    Sketcher.Constraint("Vertical", 4),
    Sketcher.Constraint("Horizontal", 5),
    Sketcher.Constraint("Vertical", 7),
    Sketcher.Constraint("Horizontal", 9),
    Sketcher.Constraint("Equal", 1, 3),
    Sketcher.Constraint("Equal", 3, 6),
    Sketcher.Constraint("Equal", 6, 8),
    Sketcher.Constraint("Equal", 8, 10),
    Sketcher.Constraint("Equal", 9, 0),
    Sketcher.Constraint("Equal", 5, 4),
    Sketcher.Constraint("Radius", 1, Q("0.5 mm")),
    Sketcher.Constraint("DistanceX", 2, 2, 2, 1, Q("1 mm")),
    Sketcher.Constraint("DistanceX", 5, 2, 5, 1, Q("5.7 mm")),
    Sketcher.Constraint("DistanceX", -1, 1, 1, 3, Q("70.443596 mm")),
    Sketcher.Constraint("DistanceY", 1, 3, -1, 1, Q("30.861105 mm")),
])
pad6 = doc.addObject("PartDesign::Pad", "Pad005")
body.addObject(pad6)
pad6.Profile = sketch9
pad6.Length = 0.5

doc.recompute()
